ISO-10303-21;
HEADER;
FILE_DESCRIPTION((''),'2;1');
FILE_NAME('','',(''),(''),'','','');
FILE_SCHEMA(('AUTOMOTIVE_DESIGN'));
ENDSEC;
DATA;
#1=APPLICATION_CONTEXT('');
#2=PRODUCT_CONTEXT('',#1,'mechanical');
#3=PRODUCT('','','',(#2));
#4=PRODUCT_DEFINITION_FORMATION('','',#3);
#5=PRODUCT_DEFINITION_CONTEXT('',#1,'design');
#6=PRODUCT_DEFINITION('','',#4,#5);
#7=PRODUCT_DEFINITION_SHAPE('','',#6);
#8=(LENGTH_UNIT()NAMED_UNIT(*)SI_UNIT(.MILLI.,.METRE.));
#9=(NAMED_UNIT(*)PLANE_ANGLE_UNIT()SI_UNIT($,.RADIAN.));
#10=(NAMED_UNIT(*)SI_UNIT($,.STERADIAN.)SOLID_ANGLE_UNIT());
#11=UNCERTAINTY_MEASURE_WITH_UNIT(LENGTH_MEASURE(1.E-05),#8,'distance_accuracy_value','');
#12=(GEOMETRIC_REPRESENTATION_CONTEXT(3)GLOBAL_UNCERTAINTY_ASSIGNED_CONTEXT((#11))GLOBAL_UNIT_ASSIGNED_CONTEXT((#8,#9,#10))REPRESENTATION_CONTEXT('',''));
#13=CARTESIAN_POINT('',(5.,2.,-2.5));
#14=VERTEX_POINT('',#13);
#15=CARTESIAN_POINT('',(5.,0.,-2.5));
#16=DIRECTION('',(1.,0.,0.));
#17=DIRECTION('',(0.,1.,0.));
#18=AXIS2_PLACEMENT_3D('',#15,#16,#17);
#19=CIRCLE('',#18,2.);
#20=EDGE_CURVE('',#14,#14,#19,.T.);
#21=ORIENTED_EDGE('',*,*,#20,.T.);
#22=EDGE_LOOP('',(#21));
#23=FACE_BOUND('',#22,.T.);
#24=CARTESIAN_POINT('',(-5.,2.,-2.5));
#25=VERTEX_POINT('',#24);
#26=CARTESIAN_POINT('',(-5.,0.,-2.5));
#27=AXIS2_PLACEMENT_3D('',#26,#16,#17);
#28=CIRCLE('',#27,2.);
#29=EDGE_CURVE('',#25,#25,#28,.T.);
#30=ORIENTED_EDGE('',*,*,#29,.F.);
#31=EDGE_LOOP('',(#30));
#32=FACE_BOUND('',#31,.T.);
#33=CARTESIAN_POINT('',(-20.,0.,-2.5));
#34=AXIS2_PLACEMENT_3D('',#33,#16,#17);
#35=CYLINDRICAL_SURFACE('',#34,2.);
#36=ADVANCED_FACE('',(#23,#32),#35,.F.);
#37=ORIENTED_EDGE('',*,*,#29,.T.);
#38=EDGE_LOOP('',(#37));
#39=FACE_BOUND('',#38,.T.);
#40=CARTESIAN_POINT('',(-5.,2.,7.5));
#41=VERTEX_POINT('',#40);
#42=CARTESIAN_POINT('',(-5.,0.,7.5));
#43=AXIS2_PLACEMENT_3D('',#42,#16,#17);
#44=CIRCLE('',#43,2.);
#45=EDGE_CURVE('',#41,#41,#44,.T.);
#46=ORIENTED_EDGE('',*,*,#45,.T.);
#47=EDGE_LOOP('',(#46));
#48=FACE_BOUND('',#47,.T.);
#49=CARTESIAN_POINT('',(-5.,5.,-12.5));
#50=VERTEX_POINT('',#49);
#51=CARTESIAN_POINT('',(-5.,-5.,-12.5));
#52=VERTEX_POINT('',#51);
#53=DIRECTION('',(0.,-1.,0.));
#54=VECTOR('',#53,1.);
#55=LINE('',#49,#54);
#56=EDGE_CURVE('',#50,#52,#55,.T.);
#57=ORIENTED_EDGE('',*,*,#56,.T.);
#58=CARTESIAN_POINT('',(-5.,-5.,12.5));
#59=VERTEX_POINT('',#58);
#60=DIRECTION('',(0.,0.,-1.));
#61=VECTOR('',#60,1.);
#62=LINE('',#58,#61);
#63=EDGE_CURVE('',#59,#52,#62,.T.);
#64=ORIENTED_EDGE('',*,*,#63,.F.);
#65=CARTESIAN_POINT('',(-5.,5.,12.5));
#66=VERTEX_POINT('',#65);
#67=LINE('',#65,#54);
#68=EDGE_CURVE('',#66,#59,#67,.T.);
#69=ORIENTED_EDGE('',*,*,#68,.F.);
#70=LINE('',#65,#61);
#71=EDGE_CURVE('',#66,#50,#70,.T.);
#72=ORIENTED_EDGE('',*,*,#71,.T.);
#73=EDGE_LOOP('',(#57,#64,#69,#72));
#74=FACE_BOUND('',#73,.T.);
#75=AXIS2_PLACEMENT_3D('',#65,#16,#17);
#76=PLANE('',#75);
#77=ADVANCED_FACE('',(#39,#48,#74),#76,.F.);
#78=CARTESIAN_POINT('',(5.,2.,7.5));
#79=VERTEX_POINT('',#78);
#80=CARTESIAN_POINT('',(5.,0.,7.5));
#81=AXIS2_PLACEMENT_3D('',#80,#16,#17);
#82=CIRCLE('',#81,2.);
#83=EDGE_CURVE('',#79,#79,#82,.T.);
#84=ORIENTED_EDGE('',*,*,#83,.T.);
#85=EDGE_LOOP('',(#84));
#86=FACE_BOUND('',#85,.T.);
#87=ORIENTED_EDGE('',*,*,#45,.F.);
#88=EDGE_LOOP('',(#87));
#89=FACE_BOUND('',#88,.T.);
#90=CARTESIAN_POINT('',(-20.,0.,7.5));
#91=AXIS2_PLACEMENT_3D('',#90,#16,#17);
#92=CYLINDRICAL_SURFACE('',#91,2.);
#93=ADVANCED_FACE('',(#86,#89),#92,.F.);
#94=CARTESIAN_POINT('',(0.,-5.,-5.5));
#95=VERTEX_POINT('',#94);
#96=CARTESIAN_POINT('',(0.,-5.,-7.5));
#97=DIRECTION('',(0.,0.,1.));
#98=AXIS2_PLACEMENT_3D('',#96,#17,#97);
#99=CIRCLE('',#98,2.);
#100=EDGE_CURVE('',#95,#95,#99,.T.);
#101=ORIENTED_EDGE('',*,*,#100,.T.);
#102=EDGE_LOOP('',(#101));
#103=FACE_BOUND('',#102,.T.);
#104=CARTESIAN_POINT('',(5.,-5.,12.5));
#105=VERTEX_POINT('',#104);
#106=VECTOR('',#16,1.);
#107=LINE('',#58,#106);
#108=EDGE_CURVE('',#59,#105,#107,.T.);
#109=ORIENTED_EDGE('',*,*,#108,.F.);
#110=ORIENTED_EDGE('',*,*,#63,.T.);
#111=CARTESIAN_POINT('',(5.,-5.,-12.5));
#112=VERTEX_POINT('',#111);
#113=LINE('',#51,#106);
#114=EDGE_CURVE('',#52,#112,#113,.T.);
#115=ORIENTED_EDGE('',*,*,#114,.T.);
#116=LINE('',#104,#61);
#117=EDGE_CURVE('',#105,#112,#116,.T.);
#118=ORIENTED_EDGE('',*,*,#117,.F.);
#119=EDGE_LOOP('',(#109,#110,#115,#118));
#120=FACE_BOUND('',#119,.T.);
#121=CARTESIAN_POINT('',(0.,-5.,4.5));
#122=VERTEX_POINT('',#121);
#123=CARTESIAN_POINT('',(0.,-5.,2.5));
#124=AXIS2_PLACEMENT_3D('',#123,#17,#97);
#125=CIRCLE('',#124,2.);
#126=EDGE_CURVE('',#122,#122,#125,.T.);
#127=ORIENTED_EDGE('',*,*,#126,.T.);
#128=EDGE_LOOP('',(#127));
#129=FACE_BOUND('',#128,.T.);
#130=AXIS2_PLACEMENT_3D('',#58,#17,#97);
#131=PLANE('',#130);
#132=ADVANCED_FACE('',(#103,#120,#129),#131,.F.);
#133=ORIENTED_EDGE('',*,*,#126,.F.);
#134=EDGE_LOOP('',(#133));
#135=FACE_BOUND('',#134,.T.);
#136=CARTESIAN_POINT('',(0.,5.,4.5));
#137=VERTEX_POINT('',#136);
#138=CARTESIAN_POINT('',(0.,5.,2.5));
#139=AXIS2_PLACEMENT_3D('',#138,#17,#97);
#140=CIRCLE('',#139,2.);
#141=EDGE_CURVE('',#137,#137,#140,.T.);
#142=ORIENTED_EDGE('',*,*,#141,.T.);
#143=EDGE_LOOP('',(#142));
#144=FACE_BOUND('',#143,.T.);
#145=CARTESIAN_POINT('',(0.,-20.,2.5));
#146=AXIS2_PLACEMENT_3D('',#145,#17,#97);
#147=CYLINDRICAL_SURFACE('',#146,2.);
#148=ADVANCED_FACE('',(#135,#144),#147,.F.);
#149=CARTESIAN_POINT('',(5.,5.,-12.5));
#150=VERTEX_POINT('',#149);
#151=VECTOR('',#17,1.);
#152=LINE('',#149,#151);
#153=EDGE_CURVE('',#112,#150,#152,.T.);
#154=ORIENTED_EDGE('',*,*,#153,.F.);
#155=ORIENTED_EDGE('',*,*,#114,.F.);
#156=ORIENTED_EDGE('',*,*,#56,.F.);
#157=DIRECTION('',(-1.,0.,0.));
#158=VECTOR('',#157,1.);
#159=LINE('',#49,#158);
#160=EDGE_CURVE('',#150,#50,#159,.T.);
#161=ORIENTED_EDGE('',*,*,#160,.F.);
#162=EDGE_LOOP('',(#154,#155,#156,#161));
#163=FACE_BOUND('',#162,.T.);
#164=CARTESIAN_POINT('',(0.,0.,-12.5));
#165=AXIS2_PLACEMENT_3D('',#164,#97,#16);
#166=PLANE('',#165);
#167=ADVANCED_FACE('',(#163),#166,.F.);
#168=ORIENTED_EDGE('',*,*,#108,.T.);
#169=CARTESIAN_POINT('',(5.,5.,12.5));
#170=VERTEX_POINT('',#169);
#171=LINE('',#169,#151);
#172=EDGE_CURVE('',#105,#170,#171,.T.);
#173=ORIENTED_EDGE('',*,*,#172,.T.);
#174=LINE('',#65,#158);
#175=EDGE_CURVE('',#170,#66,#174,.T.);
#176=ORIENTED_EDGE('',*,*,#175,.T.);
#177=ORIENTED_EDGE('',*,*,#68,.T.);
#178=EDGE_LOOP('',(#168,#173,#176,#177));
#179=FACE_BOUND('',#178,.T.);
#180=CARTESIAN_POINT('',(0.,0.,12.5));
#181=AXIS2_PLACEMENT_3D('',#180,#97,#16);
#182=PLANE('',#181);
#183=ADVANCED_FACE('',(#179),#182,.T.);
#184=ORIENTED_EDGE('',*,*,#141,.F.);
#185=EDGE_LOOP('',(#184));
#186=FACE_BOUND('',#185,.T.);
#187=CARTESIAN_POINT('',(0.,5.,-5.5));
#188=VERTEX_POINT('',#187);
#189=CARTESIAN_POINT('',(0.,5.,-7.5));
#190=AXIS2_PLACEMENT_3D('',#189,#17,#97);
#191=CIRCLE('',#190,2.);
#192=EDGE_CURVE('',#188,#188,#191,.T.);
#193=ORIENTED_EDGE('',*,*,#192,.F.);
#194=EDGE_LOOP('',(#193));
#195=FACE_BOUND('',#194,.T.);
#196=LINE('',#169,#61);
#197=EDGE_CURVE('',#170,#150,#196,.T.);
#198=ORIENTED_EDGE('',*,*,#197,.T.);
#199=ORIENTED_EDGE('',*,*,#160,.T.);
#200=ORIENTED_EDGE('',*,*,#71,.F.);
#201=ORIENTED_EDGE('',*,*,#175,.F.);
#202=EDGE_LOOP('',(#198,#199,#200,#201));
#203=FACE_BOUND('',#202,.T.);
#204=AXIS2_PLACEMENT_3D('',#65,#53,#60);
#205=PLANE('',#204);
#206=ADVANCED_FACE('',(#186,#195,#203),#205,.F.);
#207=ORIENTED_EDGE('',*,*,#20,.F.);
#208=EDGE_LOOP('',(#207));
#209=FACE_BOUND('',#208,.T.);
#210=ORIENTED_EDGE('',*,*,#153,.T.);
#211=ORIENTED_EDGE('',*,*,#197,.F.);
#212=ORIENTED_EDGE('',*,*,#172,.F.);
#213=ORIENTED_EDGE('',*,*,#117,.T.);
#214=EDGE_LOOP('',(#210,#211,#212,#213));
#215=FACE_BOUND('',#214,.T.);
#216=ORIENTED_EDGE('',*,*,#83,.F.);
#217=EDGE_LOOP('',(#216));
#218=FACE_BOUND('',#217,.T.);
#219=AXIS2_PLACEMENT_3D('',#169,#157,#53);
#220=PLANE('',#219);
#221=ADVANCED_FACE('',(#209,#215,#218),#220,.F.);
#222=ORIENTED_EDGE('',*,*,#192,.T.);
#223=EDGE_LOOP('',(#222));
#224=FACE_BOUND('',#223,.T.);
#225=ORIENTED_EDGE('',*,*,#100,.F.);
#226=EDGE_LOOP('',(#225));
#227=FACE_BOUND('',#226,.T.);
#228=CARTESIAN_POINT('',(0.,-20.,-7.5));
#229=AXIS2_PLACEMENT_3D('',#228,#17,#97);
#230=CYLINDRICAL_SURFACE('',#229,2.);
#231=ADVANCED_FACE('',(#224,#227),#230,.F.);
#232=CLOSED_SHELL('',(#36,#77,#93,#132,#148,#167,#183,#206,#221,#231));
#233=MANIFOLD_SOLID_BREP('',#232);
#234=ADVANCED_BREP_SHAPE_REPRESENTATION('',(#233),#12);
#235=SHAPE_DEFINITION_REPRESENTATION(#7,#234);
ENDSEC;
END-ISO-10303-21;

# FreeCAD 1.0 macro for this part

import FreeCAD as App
import Part
import Sketcher


def add_polygon(sketch, points):
    """Adds a closed chain of lines whose ends are joined by coincident constraints."""
    first, n = sketch.GeometryCount, len(points)
    for a, b in zip(points, points[1:] + points[:1]):
        sketch.addGeometry(Part.LineSegment(App.Vector(*a, 0), App.Vector(*b, 0)), False)
    for i in range(n):
        sketch.addConstraint(Sketcher.Constraint("Coincident", first + i, 2, first + (i + 1) % n, 1))

doc = App.newDocument("Part")
body = doc.addObject("PartDesign::Body", "Body")

# Sketch on XY plane
sketch1 = body.newObject("Sketcher::SketchObject", "Sketch")
sketch1.AttachmentSupport = (doc.getObject("XY_Plane"), [""])
sketch1.MapMode = "FlatFace"
add_polygon(sketch1, [(-5, 5), (-5, -5), (5, -5), (5, 5)])  # lines 0-3
sketch1.addConstraint(Sketcher.Constraint("Vertical", 0))
sketch1.addConstraint(Sketcher.Constraint("Horizontal", 1))
sketch1.addConstraint(Sketcher.Constraint("Vertical", 2))
sketch1.addConstraint(Sketcher.Constraint("Horizontal", 3))
sketch1.addConstraint(Sketcher.Constraint("Symmetric", 0, 2, 2, 2, -1, 1))
sketch1.addConstraint(Sketcher.Constraint("Equal", 3, 0))
sketch1.addConstraint(Sketcher.Constraint("DistanceX", 1, 1, 1, 2, 10.0))
pad1 = body.newObject("PartDesign::Pad", "Pad")
pad1.Profile = sketch1
pad1.Length = 25
pad1.Midplane = True

# Sketch on YZ plane
sketch2 = body.newObject("Sketcher::SketchObject", "Sketch001")
sketch2.AttachmentSupport = (doc.getObject("YZ_Plane"), [""])
sketch2.MapMode = "FlatFace"
sketch2.AttachmentOffset = App.Placement(App.Vector(0, 0, 5), App.Rotation())
sketch2.addGeometry(Part.Circle(App.Vector(0, 7.5, 0), App.Vector(0, 0, 1), 2), False)
sketch2.addGeometry(Part.Circle(App.Vector(0, -2.5, 0), App.Vector(0, 0, 1), 2), False)
sketch2.addConstraint(Sketcher.Constraint("Equal", 0, 1))
sketch2.addConstraint(Sketcher.Constraint("PointOnObject", 0, 3, -2))
sketch2.addConstraint(Sketcher.Constraint("PointOnObject", 1, 3, -2))
sketch2.addConstraint(Sketcher.Constraint("Diameter", 0, 4.0))
sketch2.addConstraint(Sketcher.Constraint("DistanceY", 1, 3, 0, 3, 10.0))
sketch2.addConstraint(Sketcher.Constraint("DistanceY", -1, 1, 0, 3, 7.5))
pocket1 = body.newObject("PartDesign::Pocket", "Pocket")
pocket1.Profile = sketch2
pocket1.Length = 25

# Sketch on XZ plane
sketch3 = body.newObject("Sketcher::SketchObject", "Sketch002")
sketch3.AttachmentSupport = (doc.getObject("XZ_Plane"), [""])
sketch3.MapMode = "FlatFace"
sketch3.AttachmentOffset = App.Placement(App.Vector(0, 0, -5), App.Rotation())
sketch3.addGeometry(Part.Circle(App.Vector(0, -7.5, 0), App.Vector(0, 0, 1), 2), False)
sketch3.addGeometry(Part.Circle(App.Vector(0, 2.5, 0), App.Vector(0, 0, 1), 2), False)
sketch3.addConstraint(Sketcher.Constraint("Equal", 0, 1))
sketch3.addConstraint(Sketcher.Constraint("PointOnObject", 0, 3, -2))
sketch3.addConstraint(Sketcher.Constraint("PointOnObject", 1, 3, -2))
sketch3.addConstraint(Sketcher.Constraint("Diameter", 0, 4.0))
sketch3.addConstraint(Sketcher.Constraint("DistanceY", 0, 3, 1, 3, 10.0))
sketch3.addConstraint(Sketcher.Constraint("DistanceY", 0, 3, -1, 1, 7.5))
pocket2 = body.newObject("PartDesign::Pocket", "Pocket001")
pocket2.Profile = sketch3
pocket2.Length = 25
pocket2.Reversed = True

doc.recompute()
